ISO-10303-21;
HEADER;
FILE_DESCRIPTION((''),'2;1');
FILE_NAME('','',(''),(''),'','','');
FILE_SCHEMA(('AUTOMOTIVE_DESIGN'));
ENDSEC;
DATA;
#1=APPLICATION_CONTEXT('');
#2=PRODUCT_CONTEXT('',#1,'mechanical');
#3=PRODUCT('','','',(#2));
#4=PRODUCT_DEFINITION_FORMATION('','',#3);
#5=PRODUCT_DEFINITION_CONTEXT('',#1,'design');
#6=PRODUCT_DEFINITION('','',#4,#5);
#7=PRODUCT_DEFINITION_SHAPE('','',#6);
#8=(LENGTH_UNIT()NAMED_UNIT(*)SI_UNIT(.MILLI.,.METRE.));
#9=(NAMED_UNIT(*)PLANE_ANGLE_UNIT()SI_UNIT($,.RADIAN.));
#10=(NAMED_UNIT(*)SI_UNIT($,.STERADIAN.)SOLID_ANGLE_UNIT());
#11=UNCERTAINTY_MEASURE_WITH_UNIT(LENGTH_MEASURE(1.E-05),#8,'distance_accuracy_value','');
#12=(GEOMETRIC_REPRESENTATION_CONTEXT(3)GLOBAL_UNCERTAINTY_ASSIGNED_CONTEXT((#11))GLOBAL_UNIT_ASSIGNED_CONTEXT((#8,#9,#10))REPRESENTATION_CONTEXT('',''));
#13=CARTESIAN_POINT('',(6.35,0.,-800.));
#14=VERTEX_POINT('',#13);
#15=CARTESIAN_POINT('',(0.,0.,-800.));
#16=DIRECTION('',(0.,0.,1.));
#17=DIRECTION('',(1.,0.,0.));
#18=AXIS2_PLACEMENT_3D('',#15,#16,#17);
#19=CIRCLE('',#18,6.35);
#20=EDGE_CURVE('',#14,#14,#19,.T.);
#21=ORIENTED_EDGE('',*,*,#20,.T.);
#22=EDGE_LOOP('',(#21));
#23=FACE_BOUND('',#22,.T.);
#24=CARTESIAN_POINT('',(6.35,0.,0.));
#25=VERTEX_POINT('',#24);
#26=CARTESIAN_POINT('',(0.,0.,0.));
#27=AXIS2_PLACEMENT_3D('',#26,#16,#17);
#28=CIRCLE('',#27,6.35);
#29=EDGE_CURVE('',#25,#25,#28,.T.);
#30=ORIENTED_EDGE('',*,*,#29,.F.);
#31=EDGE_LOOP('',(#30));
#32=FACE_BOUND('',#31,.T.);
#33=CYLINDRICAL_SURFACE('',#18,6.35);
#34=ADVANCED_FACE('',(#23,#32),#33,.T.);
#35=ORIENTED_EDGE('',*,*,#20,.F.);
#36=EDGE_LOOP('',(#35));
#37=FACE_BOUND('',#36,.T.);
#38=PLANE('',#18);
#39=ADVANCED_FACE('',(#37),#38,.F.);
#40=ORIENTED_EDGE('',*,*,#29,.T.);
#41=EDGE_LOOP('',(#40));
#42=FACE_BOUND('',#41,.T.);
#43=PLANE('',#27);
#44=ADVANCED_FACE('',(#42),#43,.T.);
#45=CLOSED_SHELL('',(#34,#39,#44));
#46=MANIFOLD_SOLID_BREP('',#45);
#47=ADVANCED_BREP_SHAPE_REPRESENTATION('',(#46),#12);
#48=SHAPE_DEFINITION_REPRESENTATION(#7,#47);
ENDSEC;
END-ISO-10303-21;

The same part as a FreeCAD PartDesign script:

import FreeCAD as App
import Part
import Sketcher
from FreeCAD import Vector
Q = App.Units.Quantity

doc = App.newDocument("Part")
params = doc.addObject("Spreadsheet::Sheet", "Params")
for row, (alias, value) in enumerate([
    ("sketch1_diameter", "12.7 mm"),
    ("sketch2_height", "800 mm"),
], start=1):
    params.set(f"A{row}", alias)
    params.set(f"B{row}", "=" + value)
    params.setAlias(f"B{row}", alias)

body = doc.addObject("PartDesign::Body", "Body")

# Sketch on XY plane
sketch1 = doc.addObject("Sketcher::SketchObject", "Sketch")
body.addObject(sketch1)
sketch1.AttachmentSupport = (doc.XY_Plane, [""])
sketch1.MapMode = "FlatFace"
sketch1.addGeometry(Part.Circle(Vector(0, 0, 0), Vector(0, 0, 1), 6), False)
sketch1.addConstraint(Sketcher.Constraint("Coincident", 0, 3, -1, 1))
sketch1.addConstraint(Sketcher.Constraint("Diameter", 0, Q("12.7 mm")))
sketch1.setExpression("Constraints[1]", "Params.sketch1_diameter")

# Sketch on XZ plane
sketch2 = doc.addObject("Sketcher::SketchObject", "Sketch001")
body.addObject(sketch2)
sketch2.AttachmentSupport = (doc.XZ_Plane, [""])
sketch2.MapMode = "FlatFace"
sketch2.addGeometry(Part.LineSegment(Vector(0, 0, 0), Vector(0, -800, 0)), False)
sketch2.addConstraint(Sketcher.Constraint("Vertical", 0))
sketch2.addConstraint(Sketcher.Constraint("Coincident", 0, 1, -1, 1))
sketch2.addConstraint(Sketcher.Constraint("DistanceY", 0, 2, 0, 1, Q("800 mm")))
sketch2.setExpression("Constraints[2]", "Params.sketch2_height")
doc.recompute()

additivepipe = doc.addObject("PartDesign::AdditivePipe", "AdditivePipe")
body.addObject(additivepipe)
additivepipe.Profile = sketch1
additivepipe.Spine = (sketch2, ["Edge1"])

doc.recompute()
